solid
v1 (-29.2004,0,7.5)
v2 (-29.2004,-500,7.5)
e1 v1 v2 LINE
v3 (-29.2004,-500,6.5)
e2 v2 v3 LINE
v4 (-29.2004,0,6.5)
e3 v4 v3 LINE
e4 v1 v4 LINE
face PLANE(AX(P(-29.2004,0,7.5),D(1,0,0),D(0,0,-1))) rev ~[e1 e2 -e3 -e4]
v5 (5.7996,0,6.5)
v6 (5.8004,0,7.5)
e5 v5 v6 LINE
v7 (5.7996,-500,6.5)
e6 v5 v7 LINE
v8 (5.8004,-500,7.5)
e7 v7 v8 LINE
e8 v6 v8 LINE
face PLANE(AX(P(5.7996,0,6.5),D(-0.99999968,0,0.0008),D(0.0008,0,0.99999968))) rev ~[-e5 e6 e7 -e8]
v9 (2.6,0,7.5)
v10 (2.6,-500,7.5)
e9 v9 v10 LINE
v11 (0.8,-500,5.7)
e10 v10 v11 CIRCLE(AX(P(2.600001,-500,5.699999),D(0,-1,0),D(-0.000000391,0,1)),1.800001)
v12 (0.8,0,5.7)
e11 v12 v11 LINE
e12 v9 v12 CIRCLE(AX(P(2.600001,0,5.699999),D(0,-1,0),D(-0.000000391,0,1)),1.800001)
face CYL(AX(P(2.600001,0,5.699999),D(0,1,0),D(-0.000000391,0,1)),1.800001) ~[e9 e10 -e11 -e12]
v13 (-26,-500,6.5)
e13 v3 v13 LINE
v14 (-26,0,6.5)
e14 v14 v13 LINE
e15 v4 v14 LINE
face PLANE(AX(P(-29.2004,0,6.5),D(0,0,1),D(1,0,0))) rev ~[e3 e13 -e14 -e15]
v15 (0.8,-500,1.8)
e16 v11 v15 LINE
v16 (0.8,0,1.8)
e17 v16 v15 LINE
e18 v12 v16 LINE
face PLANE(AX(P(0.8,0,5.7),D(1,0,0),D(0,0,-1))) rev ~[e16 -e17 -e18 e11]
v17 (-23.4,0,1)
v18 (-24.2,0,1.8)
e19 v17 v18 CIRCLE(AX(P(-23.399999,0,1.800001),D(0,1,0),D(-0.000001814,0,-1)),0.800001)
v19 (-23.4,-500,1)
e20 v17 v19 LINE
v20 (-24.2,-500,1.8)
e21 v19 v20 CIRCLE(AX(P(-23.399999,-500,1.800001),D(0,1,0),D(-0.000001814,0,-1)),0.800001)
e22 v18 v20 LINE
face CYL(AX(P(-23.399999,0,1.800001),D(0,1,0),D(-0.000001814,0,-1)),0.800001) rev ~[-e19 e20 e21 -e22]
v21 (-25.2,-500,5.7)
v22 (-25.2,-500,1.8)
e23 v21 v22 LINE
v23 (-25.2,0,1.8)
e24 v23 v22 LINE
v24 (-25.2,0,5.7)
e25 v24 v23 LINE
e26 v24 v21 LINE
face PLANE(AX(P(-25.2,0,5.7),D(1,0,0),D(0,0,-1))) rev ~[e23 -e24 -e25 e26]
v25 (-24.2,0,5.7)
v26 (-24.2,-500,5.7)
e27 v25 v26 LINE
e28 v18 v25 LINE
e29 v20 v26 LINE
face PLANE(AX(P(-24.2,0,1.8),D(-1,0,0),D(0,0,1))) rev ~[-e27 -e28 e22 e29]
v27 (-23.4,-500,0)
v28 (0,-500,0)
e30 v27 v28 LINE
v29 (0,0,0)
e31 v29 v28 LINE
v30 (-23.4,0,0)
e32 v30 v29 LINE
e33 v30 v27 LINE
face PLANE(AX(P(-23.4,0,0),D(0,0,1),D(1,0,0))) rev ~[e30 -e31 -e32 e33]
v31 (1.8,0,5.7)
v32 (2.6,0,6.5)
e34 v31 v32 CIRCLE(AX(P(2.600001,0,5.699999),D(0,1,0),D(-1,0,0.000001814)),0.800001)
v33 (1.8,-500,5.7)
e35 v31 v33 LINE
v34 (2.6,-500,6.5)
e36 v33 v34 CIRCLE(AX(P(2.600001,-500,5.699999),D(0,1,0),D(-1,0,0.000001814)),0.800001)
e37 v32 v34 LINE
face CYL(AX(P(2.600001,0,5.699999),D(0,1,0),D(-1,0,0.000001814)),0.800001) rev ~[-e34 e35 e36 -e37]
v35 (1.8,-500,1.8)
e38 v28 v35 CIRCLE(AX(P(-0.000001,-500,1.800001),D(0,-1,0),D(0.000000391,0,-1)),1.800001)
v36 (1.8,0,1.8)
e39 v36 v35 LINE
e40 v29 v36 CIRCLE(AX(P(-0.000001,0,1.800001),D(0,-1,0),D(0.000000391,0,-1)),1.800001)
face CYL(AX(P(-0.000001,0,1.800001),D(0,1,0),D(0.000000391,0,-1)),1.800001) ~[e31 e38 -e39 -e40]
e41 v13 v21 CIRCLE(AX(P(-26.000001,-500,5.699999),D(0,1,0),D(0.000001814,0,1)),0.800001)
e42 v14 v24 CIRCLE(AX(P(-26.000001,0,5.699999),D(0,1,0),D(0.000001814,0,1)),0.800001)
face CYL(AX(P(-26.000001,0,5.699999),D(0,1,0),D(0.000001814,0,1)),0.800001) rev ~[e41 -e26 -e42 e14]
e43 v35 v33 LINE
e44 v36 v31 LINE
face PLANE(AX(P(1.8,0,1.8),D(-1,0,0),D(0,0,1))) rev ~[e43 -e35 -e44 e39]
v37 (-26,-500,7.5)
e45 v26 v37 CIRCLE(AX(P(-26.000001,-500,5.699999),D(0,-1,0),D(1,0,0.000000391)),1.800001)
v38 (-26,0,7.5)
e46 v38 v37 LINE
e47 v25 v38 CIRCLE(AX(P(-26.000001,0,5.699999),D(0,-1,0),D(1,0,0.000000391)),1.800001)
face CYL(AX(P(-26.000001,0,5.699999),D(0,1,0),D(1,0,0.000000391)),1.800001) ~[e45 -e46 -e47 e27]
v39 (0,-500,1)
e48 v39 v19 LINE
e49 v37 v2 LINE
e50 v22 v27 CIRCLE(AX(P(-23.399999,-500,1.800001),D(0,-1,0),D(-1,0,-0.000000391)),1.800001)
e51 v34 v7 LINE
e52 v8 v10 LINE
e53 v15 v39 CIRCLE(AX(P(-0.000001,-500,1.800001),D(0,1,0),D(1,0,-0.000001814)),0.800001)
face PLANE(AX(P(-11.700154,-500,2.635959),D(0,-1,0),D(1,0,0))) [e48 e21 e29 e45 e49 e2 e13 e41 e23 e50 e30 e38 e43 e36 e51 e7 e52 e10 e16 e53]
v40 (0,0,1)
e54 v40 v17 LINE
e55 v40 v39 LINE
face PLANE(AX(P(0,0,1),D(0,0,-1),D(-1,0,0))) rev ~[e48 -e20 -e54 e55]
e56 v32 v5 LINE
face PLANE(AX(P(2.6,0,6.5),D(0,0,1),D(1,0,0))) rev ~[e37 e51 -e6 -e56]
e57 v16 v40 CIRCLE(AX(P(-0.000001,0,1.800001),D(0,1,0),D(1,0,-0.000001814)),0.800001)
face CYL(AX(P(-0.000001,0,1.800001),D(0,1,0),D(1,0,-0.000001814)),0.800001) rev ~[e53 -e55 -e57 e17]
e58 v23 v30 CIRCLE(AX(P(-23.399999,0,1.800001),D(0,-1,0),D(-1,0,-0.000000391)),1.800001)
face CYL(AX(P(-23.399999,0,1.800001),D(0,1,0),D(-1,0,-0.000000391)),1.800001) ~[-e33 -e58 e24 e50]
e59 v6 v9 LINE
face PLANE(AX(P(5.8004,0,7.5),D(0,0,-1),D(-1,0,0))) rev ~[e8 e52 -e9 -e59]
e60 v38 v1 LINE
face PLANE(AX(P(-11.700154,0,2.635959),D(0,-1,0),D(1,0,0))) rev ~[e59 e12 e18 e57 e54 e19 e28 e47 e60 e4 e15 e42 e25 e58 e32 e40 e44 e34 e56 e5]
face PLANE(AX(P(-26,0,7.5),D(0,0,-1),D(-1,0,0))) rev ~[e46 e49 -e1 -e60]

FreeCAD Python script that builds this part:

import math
import FreeCAD as App
import Part
import Sketcher
Q = App.Units.Quantity

doc = App.newDocument("Part")
params = doc.addObject("Spreadsheet::Sheet", "Params")
for row, (alias, value) in enumerate([
    ("sketch1_radius", "1.800001 mm"),
    ("sketch1_radius2", "0.800001 mm"),
    ("sketch1_width", "23.4 mm"),
    ("sketch1_height", "3.9 mm"),
    ("pad1_length", "500 mm"),
], start=1):
    params.set(f"A{row}", alias)
    params.set(f"B{row}", "=" + value)
    params.setAlias(f"B{row}", alias)

body = doc.addObject("PartDesign::Body", "Body")

# Sketch on XZ plane
sketch1 = body.newObject("Sketcher::SketchObject", "Sketch")
sketch1.AttachmentSupport = (doc.getObject("XZ_Plane"), [""])
sketch1.MapMode = "FlatFace"
sketch1.addGeometry([
    Part.LineSegment(App.Vector(-23.4, 0, 0), App.Vector(0, 0, 0)),  # 0
    Part.ArcOfCircle(Part.Circle(App.Vector(-0.000001, 1.800001, 0), App.Vector(0, 0, 1), 1.800001), math.radians(-89.999978), math.radians(-0.000022)),  # 1
    Part.LineSegment(App.Vector(1.8, 1.8, 0), App.Vector(1.8, 5.7, 0)),  # 2
    Part.ArcOfCircle(Part.Circle(App.Vector(2.600001, 5.699999, 0), App.Vector(0, 0, 1), 0.800001), math.radians(90.000104), math.radians(179.999896)),  # 3
    Part.LineSegment(App.Vector(2.6, 6.5, 0), App.Vector(5.7996, 6.5, 0)),  # 4
    Part.LineSegment(App.Vector(5.7996, 6.5, 0), App.Vector(5.8004, 7.5, 0)),  # 5
    Part.LineSegment(App.Vector(5.8004, 7.5, 0), App.Vector(2.6, 7.5, 0)),  # 6
    Part.ArcOfCircle(Part.Circle(App.Vector(2.600001, 5.699999, 0), App.Vector(0, 0, 1), 1.800001), math.radians(90.000022), math.radians(179.999978)),  # 7
    Part.LineSegment(App.Vector(0.8, 5.7, 0), App.Vector(0.8, 1.8, 0)),  # 8
    Part.ArcOfCircle(Part.Circle(App.Vector(-0.000001, 1.800001, 0), App.Vector(0, 0, 1), 0.800001), math.radians(-89.999896), math.radians(-0.000104)),  # 9
    Part.LineSegment(App.Vector(0, 1, 0), App.Vector(-23.4, 1, 0)),  # 10
    Part.ArcOfCircle(Part.Circle(App.Vector(-23.399999, 1.800001, 0), App.Vector(0, 0, 1), 0.800001), math.radians(-179.999896), math.radians(-90.000104)),  # 11
    Part.LineSegment(App.Vector(-24.2, 1.8, 0), App.Vector(-24.2, 5.7, 0)),  # 12
    Part.ArcOfCircle(Part.Circle(App.Vector(-26.000001, 5.699999, 0), App.Vector(0, 0, 1), 1.800001), math.radians(0.000022), math.radians(89.999978)),  # 13
    Part.LineSegment(App.Vector(-26, 7.5, 0), App.Vector(-29.2004, 7.5, 0)),  # 14
    Part.LineSegment(App.Vector(-29.2004, 7.5, 0), App.Vector(-29.2004, 6.5, 0)),  # 15
    Part.LineSegment(App.Vector(-29.2004, 6.5, 0), App.Vector(-26, 6.5, 0)),  # 16
    Part.ArcOfCircle(Part.Circle(App.Vector(-26.000001, 5.699999, 0), App.Vector(0, 0, 1), 0.800001), math.radians(0.000104), math.radians(89.999896)),  # 17
    Part.LineSegment(App.Vector(-25.2, 5.7, 0), App.Vector(-25.2, 1.8, 0)),  # 18
    Part.ArcOfCircle(Part.Circle(App.Vector(-23.399999, 1.800001, 0), App.Vector(0, 0, 1), 1.800001), math.radians(-179.999978), math.radians(-90.000022)),  # 19
], False)
sketch1.addConstraint([
    Sketcher.Constraint("Tangent", 0, 2, 1, 1),
    Sketcher.Constraint("Tangent", 1, 2, 2, 1),
    Sketcher.Constraint("Tangent", 2, 2, 3, 2),
    Sketcher.Constraint("Tangent", 3, 1, 4, 1),
    Sketcher.Constraint("Coincident", 4, 2, 5, 1),
    Sketcher.Constraint("Coincident", 5, 2, 6, 1),
    Sketcher.Constraint("Tangent", 6, 2, 7, 1),
    Sketcher.Constraint("Tangent", 7, 2, 8, 1),
    Sketcher.Constraint("Tangent", 8, 2, 9, 2),
    Sketcher.Constraint("Tangent", 9, 1, 10, 1),
    Sketcher.Constraint("Tangent", 10, 2, 11, 2),
    Sketcher.Constraint("Tangent", 11, 1, 12, 1),
    Sketcher.Constraint("Tangent", 12, 2, 13, 1),
    Sketcher.Constraint("Tangent", 13, 2, 14, 1),
    Sketcher.Constraint("Coincident", 14, 2, 15, 1),
    Sketcher.Constraint("Coincident", 15, 2, 16, 1),
    Sketcher.Constraint("Tangent", 16, 2, 17, 2),
    Sketcher.Constraint("Tangent", 17, 1, 18, 1),
    Sketcher.Constraint("Tangent", 18, 2, 19, 1),
    Sketcher.Constraint("Tangent", 19, 2, 0, 1),
    Sketcher.Constraint("Horizontal", 0),
    Sketcher.Constraint("Vertical", 2),
    Sketcher.Constraint("Horizontal", 4),
    Sketcher.Constraint("Horizontal", 6),
    Sketcher.Constraint("Vertical", 8),
    Sketcher.Constraint("Horizontal", 10),
    Sketcher.Constraint("Vertical", 12),
    Sketcher.Constraint("Horizontal", 14),
    Sketcher.Constraint("Vertical", 15),
    Sketcher.Constraint("Horizontal", 16),
    Sketcher.Constraint("Vertical", 18),
    Sketcher.Constraint("Coincident", 0, 2, -1, 1),
    Sketcher.Constraint("Coincident", 7, 3, 3, 3),
    Sketcher.Constraint("Coincident", 9, 3, 1, 3),
    Sketcher.Constraint("Coincident", 17, 3, 13, 3),
    Sketcher.Constraint("Coincident", 19, 3, 11, 3),
    Sketcher.Constraint("Equal", 1, 7),
    Sketcher.Constraint("Equal", 9, 11),
    Sketcher.Constraint("Equal", 7, 13),
    Sketcher.Constraint("Horizontal", 7, 3, 13, 3),
    Sketcher.Constraint("Equal", 6, 14),
    Sketcher.Constraint("Radius", 1, Q("1.800001 mm")),
    Sketcher.Constraint("Radius", 3, Q("0.800001 mm")),
    Sketcher.Constraint("DistanceX", 0, 1, 0, 2, Q("23.4 mm")),
    Sketcher.Constraint("DistanceY", 2, 1, 2, 2, Q("3.9 mm")),
    Sketcher.Constraint("DistanceX", 4, 1, 4, 2, Q("3.1996 mm")),
    Sketcher.Constraint("DistanceX", 6, 2, 6, 1, Q("3.2004 mm")),
])
sketch1.setExpression("Constraints[41]", "Params.sketch1_radius")
sketch1.setExpression("Constraints[42]", "Params.sketch1_radius2")
sketch1.setExpression("Constraints[43]", "Params.sketch1_width")
sketch1.setExpression("Constraints[44]", "Params.sketch1_height")
pad1 = body.newObject("PartDesign::Pad", "Pad")
pad1.Profile = sketch1
pad1.setExpression("Length", "Params.pad1_length")

doc.recompute()
